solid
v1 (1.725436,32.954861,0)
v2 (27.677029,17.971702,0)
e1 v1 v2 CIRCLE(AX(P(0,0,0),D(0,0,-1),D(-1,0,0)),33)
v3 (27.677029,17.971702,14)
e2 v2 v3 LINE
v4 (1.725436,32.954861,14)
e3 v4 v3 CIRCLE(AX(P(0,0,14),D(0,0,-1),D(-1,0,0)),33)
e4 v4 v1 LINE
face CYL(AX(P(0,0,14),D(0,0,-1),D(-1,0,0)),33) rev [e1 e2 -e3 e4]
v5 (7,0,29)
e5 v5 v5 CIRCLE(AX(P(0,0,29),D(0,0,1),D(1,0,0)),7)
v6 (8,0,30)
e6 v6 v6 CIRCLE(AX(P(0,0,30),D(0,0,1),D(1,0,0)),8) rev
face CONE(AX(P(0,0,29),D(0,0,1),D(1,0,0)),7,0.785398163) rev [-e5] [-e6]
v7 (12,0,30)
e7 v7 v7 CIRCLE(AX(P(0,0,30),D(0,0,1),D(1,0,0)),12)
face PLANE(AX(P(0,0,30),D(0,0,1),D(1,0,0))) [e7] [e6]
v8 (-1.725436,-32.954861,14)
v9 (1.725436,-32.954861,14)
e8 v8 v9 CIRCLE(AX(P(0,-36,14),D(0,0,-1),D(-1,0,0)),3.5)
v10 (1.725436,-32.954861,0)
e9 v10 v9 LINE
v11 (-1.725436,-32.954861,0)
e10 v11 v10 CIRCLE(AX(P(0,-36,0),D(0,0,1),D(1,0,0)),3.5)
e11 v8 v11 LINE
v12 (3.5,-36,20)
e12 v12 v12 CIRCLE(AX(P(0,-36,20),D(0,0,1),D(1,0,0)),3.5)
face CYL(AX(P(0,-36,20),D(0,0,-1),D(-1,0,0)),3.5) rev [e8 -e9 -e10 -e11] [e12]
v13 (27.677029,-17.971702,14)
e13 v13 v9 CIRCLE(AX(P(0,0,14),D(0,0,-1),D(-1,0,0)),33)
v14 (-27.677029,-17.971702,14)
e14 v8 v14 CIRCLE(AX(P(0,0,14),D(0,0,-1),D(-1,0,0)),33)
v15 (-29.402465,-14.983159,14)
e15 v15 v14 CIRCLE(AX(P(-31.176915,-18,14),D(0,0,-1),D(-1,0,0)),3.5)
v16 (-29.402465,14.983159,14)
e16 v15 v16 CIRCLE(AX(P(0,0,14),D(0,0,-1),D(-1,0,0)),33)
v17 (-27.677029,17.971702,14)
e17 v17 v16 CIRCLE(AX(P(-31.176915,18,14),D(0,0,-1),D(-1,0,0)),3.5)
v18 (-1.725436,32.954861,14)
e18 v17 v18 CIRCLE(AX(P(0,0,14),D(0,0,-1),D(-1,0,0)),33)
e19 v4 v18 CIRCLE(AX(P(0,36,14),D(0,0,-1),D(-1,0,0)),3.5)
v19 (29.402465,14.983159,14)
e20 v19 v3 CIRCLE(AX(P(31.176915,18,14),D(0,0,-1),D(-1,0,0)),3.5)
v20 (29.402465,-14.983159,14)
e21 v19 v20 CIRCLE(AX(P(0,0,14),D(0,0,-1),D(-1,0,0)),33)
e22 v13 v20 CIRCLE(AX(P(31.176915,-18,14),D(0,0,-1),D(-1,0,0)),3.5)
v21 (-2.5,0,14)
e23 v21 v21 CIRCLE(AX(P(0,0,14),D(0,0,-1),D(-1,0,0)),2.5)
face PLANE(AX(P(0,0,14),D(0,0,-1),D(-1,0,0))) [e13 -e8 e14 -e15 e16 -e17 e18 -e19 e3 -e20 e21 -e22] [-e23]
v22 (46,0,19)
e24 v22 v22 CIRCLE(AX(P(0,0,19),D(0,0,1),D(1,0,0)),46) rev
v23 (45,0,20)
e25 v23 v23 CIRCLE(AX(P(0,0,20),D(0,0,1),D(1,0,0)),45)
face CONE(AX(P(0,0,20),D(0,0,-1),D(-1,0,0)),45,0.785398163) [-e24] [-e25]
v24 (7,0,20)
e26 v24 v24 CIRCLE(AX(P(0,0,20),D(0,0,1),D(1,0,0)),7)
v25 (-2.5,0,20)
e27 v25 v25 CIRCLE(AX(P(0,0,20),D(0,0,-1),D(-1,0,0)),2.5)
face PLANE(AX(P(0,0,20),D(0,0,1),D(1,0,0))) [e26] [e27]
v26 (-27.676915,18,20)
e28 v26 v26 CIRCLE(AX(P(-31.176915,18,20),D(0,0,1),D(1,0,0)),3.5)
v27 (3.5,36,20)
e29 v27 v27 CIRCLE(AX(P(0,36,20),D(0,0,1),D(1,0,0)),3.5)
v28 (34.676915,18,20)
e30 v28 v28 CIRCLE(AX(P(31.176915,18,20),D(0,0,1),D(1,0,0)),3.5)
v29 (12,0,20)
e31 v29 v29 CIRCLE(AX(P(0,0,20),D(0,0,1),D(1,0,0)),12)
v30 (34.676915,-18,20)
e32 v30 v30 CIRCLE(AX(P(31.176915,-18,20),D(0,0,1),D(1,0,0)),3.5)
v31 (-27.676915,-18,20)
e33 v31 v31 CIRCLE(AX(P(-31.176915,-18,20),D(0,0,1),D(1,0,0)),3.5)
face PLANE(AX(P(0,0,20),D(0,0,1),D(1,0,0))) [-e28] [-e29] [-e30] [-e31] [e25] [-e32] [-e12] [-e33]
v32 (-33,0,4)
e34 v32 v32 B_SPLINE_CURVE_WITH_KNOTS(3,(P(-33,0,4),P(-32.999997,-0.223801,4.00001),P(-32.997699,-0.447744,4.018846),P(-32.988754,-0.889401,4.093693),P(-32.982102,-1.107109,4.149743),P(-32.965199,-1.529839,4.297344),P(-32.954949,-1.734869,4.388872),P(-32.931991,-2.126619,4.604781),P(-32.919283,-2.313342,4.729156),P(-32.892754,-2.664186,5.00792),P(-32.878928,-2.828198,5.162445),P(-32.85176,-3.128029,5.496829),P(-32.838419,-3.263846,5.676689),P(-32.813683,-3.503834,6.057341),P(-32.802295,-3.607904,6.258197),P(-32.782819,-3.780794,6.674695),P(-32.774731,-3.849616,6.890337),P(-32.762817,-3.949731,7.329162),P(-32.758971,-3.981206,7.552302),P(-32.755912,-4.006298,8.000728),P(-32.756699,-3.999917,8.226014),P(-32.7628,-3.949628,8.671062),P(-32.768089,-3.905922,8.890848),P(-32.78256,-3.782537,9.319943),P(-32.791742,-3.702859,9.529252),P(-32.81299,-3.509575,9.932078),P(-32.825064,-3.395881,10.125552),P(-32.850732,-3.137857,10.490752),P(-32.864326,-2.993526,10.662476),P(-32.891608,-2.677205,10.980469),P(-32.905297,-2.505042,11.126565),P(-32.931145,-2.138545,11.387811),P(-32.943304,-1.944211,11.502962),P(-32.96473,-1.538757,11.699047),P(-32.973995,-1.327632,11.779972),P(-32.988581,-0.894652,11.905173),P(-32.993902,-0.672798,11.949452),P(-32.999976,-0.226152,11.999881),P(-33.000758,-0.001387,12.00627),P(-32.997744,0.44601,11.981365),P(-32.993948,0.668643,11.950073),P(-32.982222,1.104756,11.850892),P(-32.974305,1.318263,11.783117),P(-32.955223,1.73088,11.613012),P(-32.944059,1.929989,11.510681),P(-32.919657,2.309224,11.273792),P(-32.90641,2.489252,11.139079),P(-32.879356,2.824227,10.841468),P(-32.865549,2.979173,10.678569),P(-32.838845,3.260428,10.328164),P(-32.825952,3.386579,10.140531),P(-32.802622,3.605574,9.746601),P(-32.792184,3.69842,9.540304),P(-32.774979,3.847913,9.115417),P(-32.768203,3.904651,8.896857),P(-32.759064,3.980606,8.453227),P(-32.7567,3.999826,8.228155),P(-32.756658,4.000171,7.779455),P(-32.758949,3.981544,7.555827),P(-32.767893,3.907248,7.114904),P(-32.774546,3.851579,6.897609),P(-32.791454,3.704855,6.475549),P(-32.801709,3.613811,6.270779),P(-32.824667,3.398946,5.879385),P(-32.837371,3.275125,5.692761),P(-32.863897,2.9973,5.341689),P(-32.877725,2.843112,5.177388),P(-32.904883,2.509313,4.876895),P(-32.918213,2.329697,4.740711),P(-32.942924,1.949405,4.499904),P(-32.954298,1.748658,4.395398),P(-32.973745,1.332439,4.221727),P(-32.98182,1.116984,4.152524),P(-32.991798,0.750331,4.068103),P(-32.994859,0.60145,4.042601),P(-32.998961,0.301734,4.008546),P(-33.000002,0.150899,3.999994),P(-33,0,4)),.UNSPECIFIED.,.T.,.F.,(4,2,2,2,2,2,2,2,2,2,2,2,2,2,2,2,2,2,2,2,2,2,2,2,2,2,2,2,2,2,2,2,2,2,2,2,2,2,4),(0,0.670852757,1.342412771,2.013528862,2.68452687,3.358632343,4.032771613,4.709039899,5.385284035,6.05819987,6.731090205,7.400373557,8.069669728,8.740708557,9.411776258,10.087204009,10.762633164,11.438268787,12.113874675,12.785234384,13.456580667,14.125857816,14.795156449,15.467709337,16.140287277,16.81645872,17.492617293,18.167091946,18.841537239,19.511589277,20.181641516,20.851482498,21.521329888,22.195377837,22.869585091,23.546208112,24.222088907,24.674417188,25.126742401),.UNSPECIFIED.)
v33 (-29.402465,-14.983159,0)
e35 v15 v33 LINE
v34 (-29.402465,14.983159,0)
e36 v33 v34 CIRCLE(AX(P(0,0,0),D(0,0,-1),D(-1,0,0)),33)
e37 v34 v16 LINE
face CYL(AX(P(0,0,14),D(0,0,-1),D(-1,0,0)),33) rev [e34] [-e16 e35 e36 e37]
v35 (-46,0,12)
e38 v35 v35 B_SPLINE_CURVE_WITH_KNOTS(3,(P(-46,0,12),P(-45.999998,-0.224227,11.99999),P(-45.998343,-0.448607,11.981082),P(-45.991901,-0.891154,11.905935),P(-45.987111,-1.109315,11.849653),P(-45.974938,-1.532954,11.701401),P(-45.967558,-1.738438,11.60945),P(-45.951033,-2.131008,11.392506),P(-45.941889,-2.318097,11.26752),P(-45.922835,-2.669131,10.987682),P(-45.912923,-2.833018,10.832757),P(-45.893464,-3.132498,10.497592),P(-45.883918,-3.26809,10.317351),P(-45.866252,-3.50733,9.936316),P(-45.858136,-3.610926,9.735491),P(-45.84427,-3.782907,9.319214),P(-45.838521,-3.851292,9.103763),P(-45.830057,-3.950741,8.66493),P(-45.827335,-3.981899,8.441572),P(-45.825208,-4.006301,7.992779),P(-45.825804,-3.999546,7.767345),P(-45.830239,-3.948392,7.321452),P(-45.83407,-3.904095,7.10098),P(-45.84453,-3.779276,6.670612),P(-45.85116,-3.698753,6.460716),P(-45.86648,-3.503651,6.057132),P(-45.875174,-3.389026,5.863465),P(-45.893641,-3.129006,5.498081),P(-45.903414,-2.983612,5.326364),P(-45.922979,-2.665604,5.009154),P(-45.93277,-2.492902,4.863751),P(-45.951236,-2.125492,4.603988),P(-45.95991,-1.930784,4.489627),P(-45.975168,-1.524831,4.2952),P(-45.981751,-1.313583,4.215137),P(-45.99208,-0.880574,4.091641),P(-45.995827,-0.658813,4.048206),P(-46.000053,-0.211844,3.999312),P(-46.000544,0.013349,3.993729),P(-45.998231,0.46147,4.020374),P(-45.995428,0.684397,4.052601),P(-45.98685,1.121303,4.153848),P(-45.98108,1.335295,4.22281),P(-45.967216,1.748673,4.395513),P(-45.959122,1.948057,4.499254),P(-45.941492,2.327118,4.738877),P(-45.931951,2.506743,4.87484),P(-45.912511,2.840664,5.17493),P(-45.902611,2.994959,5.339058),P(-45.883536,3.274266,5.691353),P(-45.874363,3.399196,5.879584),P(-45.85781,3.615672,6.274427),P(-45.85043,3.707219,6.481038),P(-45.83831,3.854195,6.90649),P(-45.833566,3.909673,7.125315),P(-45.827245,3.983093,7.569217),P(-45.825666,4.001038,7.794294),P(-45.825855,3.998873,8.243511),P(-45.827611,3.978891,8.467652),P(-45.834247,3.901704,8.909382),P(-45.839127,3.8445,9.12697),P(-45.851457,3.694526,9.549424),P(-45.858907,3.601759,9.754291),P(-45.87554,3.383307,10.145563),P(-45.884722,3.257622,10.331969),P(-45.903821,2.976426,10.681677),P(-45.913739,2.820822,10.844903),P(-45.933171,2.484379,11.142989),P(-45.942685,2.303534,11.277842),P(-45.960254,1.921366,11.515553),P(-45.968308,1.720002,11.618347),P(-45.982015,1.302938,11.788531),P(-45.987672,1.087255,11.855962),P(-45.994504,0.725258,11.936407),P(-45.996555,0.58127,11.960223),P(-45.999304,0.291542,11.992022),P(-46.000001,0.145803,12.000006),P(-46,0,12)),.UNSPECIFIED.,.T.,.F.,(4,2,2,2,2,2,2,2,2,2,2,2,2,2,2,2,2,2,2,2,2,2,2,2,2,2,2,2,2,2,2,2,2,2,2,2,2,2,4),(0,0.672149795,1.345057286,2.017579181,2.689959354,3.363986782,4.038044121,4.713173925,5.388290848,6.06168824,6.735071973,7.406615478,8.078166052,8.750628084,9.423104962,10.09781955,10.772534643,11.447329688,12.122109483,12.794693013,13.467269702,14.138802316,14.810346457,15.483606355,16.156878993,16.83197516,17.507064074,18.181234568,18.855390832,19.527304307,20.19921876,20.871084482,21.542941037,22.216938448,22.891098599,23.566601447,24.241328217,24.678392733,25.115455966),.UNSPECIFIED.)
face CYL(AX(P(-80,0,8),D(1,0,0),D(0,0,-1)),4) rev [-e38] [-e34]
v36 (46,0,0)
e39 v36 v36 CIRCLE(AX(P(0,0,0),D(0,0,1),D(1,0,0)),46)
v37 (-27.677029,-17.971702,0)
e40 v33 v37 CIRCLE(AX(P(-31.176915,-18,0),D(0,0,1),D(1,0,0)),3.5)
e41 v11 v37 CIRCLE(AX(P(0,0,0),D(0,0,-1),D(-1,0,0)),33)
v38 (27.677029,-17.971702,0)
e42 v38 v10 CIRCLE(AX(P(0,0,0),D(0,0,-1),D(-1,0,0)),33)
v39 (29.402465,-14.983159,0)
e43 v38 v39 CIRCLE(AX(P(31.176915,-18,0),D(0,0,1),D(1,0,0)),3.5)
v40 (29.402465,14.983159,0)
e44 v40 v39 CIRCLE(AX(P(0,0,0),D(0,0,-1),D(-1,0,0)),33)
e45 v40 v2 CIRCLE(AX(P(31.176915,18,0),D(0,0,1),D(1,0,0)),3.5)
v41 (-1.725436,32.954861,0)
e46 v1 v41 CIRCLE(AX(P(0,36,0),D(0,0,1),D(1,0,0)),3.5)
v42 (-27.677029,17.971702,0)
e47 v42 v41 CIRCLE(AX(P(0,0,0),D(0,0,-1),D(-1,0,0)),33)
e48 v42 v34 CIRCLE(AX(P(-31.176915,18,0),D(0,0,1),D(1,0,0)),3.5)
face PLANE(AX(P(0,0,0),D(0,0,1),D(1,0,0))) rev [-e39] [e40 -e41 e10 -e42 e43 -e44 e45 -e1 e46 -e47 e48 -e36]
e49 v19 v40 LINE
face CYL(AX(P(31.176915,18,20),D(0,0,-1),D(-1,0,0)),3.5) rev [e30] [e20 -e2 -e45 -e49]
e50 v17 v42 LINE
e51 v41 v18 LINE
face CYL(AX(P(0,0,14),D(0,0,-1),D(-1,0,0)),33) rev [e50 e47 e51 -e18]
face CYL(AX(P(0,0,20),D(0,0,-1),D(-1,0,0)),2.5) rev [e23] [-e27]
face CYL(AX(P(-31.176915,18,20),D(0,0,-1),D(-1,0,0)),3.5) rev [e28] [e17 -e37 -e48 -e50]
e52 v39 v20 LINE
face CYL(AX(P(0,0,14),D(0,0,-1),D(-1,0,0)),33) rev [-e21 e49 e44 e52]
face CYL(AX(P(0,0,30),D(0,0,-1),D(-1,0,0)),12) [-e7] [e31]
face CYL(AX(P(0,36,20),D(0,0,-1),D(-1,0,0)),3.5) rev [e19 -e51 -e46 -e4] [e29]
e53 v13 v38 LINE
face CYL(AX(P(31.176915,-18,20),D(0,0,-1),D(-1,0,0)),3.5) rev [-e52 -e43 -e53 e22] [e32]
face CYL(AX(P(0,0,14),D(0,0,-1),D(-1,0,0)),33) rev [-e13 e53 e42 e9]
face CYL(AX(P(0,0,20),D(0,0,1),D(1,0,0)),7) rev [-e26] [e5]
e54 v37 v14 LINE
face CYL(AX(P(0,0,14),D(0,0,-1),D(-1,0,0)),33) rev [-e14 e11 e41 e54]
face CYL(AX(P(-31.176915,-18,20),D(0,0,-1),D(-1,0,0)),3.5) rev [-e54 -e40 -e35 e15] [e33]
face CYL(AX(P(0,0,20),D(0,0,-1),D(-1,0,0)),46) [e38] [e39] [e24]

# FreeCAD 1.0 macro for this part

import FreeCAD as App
import Part
import Sketcher

V = App.Vector
Q = App.Units.Quantity


def edges_at(feature, points):
    """Names of the edges that pass closest to the given points."""
    edges = feature.Shape.Edges
    near = lambda p: min(range(len(edges)), key=lambda i: edges[i].distToShape(Part.Vertex(*p))[0])
    return sorted({f"Edge{near(p) + 1}" for p in points})

doc = App.newDocument("Part")
body = doc.addObject("PartDesign::Body", "Body")

# Sketch on XY plane
sketch1 = doc.addObject("Sketcher::SketchObject", "Sketch")
body.addObject(sketch1)
sketch1.AttachmentSupport = (doc.XY_Plane, [""])
sketch1.MapMode = "FlatFace"
sketch1.addGeometry([
    Part.Circle(V(0, 0, 0), V(0, 0, 1), 46),  # 0
    Part.Circle(V(-31.2, -18, 0), V(0, 0, 1), 3.5),  # 1
    Part.Circle(V(0, -36, 0), V(0, 0, 1), 3.5),  # 2
    Part.Circle(V(31.2, -18, 0), V(0, 0, 1), 3.5),  # 3
    Part.Circle(V(-31.2, 18, 0), V(0, 0, 1), 3.5),  # 4
    Part.Circle(V(31.2, 18, 0), V(0, 0, 1), 3.5),  # 5
    Part.Circle(V(0, 36, 0), V(0, 0, 1), 3.5),  # 6
], False)
sketch1.addConstraint([
    Sketcher.Constraint("Coincident", 0, 3, -1, 1),
    Sketcher.Constraint("Equal", 1, 2),
    Sketcher.Constraint("Equal", 2, 3),
    Sketcher.Constraint("Equal", 3, 4),
    Sketcher.Constraint("Equal", 4, 5),
    Sketcher.Constraint("Equal", 5, 6),
    Sketcher.Constraint("Symmetric", 3, 3, 4, 3, -1, 1),
    Sketcher.Constraint("Symmetric", 1, 3, 5, 3, -1, 1),
    Sketcher.Constraint("Symmetric", 2, 3, 6, 3, -1, 1),
    Sketcher.Constraint("Symmetric", 1, 3, 3, 3, -2),
    Sketcher.Constraint("PointOnObject", 2, 3, -2),
    Sketcher.Constraint("Diameter", 0, Q("92 mm")),
    Sketcher.Constraint("Diameter", 1, Q("7 mm")),
    Sketcher.Constraint("DistanceY", 1, 3, -1, 1, Q("18 mm")),
    Sketcher.Constraint("DistanceY", 2, 3, -1, 1, Q("36 mm")),
    Sketcher.Constraint("DistanceX", 1, 3, 3, 3, Q("62.353829 mm")),
])
pad1 = doc.addObject("PartDesign::Pad", "Pad")
body.addObject(pad1)
pad1.Profile = sketch1
pad1.Length = 20
doc.recompute()

chamfer = doc.addObject("PartDesign::Chamfer", "Chamfer")
body.addObject(chamfer)
chamfer.Base = (pad1, edges_at(pad1, [(-46, 0, 20)]))
chamfer.Size = 1

# Sketch on XY plane
sketch2 = doc.addObject("Sketcher::SketchObject", "Sketch001")
body.addObject(sketch2)
sketch2.AttachmentSupport = (doc.XY_Plane, [""])
sketch2.MapMode = "FlatFace"
sketch2.AttachmentOffset = App.Placement(V(0, 0, 20), App.Rotation())
sketch2.addGeometry(Part.Circle(V(0, 0, 0), V(0, 0, 1), 12), False)
sketch2.addConstraint([
    Sketcher.Constraint("Coincident", 0, 3, -1, 1),
    Sketcher.Constraint("Diameter", 0, Q("24 mm")),
])
pad2 = doc.addObject("PartDesign::Pad", "Pad001")
body.addObject(pad2)
pad2.Profile = sketch2
pad2.Length = 10

# Sketch on XY plane
sketch3 = doc.addObject("Sketcher::SketchObject", "Sketch002")
body.addObject(sketch3)
sketch3.AttachmentSupport = (doc.XY_Plane, [""])
sketch3.MapMode = "FlatFace"
sketch3.addGeometry(Part.Circle(V(0, 0, 0), V(0, 0, 1), 33), False)
sketch3.addConstraint([
    Sketcher.Constraint("Coincident", 0, 3, -1, 1),
    Sketcher.Constraint("Diameter", 0, Q("66 mm")),
])
pocket1 = doc.addObject("PartDesign::Pocket", "Pocket")
body.addObject(pocket1)
pocket1.Profile = sketch3
pocket1.Length = 14
pocket1.Reversed = True

# Sketch on XY plane
sketch4 = doc.addObject("Sketcher::SketchObject", "Sketch003")
body.addObject(sketch4)
sketch4.AttachmentSupport = (doc.XY_Plane, [""])
sketch4.MapMode = "FlatFace"
sketch4.AttachmentOffset = App.Placement(V(0, 0, 14), App.Rotation())
sketch4.addGeometry(Part.Circle(V(0, 0, 0), V(0, 0, 1), 2.5), False)
sketch4.addConstraint([
    Sketcher.Constraint("Coincident", 0, 3, -1, 1),
    Sketcher.Constraint("Diameter", 0, Q("5 mm")),
])
pocket2 = doc.addObject("PartDesign::Pocket", "Pocket001")
body.addObject(pocket2)
pocket2.Profile = sketch4
pocket2.Length = 6
pocket2.Reversed = True

# Sketch on XY plane
sketch5 = doc.addObject("Sketcher::SketchObject", "Sketch004")
body.addObject(sketch5)
sketch5.AttachmentSupport = (doc.XY_Plane, [""])
sketch5.MapMode = "FlatFace"
sketch5.AttachmentOffset = App.Placement(V(0, 0, 30), App.Rotation())
sketch5.addGeometry(Part.Circle(V(0, 0, 0), V(0, 0, 1), 7), False)
sketch5.addConstraint([
    Sketcher.Constraint("Coincident", 0, 3, -1, 1),
    Sketcher.Constraint("Diameter", 0, Q("14 mm")),
])
pocket3 = doc.addObject("PartDesign::Pocket", "Pocket002")
body.addObject(pocket3)
pocket3.Profile = sketch5
pocket3.Length = 10
doc.recompute()

chamfer2 = doc.addObject("PartDesign::Chamfer", "Chamfer001")
body.addObject(chamfer2)
chamfer2.Base = (pocket3, edges_at(pocket3, [(-7, 0, 30)]))
chamfer2.Size = 1

# Sketch on YZ plane
sketch6 = doc.addObject("Sketcher::SketchObject", "Sketch005")
body.addObject(sketch6)
sketch6.AttachmentSupport = (doc.YZ_Plane, [""])
sketch6.MapMode = "FlatFace"
sketch6.addGeometry(Part.Circle(V(0, 8, 0), V(0, 0, 1), 4), False)
sketch6.addConstraint([
    Sketcher.Constraint("PointOnObject", 0, 3, -2),
    Sketcher.Constraint("Diameter", 0, Q("8 mm")),
    Sketcher.Constraint("DistanceY", -1, 1, 0, 3, Q("8 mm")),
])
pocket4 = doc.addObject("PartDesign::Pocket", "Pocket003")
body.addObject(pocket4)
pocket4.Profile = sketch6
pocket4.Length = 80

doc.recompute()
